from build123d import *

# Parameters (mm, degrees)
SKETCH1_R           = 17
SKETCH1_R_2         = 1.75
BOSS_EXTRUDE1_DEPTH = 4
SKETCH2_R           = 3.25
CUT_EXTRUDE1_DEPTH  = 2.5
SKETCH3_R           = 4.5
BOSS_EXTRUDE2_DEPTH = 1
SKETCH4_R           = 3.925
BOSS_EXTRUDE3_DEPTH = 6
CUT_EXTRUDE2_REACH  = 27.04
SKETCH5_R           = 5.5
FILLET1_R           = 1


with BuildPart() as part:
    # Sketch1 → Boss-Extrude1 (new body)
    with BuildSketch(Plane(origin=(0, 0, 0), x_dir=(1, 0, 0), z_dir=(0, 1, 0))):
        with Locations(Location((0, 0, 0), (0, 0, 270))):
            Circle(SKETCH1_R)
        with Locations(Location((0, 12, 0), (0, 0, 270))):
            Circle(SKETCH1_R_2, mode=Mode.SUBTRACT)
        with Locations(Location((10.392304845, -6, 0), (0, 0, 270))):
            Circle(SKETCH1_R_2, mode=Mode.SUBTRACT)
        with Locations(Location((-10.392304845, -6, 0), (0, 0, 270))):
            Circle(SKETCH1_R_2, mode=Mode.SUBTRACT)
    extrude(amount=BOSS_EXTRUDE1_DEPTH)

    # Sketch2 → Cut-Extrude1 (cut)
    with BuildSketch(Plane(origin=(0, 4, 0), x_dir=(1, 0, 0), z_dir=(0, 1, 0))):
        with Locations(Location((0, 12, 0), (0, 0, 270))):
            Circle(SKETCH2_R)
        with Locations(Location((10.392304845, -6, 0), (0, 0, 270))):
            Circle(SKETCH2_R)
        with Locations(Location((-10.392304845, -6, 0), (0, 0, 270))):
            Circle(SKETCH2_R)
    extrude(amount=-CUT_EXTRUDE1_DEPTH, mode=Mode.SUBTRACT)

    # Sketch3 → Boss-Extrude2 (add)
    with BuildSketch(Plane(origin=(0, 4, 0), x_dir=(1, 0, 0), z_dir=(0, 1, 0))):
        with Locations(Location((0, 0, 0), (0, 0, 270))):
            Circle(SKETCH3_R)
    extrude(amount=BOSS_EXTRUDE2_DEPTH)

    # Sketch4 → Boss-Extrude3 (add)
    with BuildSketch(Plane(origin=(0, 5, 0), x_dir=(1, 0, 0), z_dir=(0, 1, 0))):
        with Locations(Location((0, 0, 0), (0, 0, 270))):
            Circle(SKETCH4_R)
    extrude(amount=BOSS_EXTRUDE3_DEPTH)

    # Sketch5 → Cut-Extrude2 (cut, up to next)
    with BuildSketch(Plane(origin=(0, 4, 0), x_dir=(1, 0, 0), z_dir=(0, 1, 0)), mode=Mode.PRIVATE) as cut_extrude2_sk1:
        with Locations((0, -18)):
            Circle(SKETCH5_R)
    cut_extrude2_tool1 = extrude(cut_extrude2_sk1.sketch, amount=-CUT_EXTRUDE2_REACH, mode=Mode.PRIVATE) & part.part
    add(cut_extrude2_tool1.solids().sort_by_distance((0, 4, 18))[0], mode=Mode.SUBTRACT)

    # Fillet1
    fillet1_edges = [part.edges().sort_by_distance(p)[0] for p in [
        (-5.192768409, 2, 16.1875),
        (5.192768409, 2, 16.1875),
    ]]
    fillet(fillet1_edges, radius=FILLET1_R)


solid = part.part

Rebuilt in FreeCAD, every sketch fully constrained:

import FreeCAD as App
import Part
import Sketcher
from FreeCAD import Vector


def edges_at(feature, points):
    """Names of the edges that pass closest to the given points."""
    edges = feature.Shape.Edges
    near = lambda p: min(range(len(edges)), key=lambda i: edges[i].distToShape(Part.Vertex(*p))[0])
    return sorted({f"Edge{near(p) + 1}" for p in points})

doc = App.newDocument("Part")
body = doc.addObject("PartDesign::Body", "Body")

sketch1 = doc.addObject("Sketcher::SketchObject", "Sketch")
body.addObject(sketch1)
sketch1.AttachmentSupport = (doc.XZ_Plane, [""])
sketch1.MapMode = "FlatFace"
sketch1.addGeometry(Part.Circle(Vector(0, 0, 0), Vector(0, 0, 1), 17), False)
sketch1.addGeometry(Part.Circle(Vector(0, -12, 0), Vector(0, 0, 1), 1.75), False)
sketch1.addGeometry(Part.Circle(Vector(-10.392305, 6, 0), Vector(0, 0, 1), 1.75), False)
sketch1.addGeometry(Part.Circle(Vector(10.392305, 6, 0), Vector(0, 0, 1), 1.75), False)
sketch1.addConstraint(Sketcher.Constraint("Coincident", 0, 3, -1, 1))
sketch1.addConstraint(Sketcher.Constraint("Equal", 1, 2))
sketch1.addConstraint(Sketcher.Constraint("Equal", 2, 3))
sketch1.addConstraint(Sketcher.Constraint("Symmetric", 2, 3, 3, 3, -2))
sketch1.addConstraint(Sketcher.Constraint("PointOnObject", 1, 3, -2))
sketch1.addConstraint(Sketcher.Constraint("Diameter", 0, 34.0))
sketch1.addConstraint(Sketcher.Constraint("Diameter", 1, 3.5))
sketch1.addConstraint(Sketcher.Constraint("DistanceY", 1, 3, -1, 1, 12.0))
sketch1.addConstraint(Sketcher.Constraint("DistanceY", -1, 1, 2, 3, 6.0))
sketch1.addConstraint(Sketcher.Constraint("DistanceX", 2, 3, 3, 3, 20.78461))
pad1 = doc.addObject("PartDesign::Pad", "Pad")
body.addObject(pad1)
pad1.Profile = sketch1
pad1.Length = 4
pad1.Reversed = True

sketch2 = doc.addObject("Sketcher::SketchObject", "Sketch001")
body.addObject(sketch2)
sketch2.AttachmentSupport = (doc.XZ_Plane, [""])
sketch2.MapMode = "FlatFace"
sketch2.AttachmentOffset = App.Placement(Vector(0, 0, -4), App.Rotation())
sketch2.addGeometry(Part.Circle(Vector(0, -12, 0), Vector(0, 0, 1), 3.25), False)
sketch2.addGeometry(Part.Circle(Vector(10.392305, 6, 0), Vector(0, 0, 1), 3.25), False)
sketch2.addGeometry(Part.Circle(Vector(-10.392305, 6, 0), Vector(0, 0, 1), 3.25), False)
sketch2.addConstraint(Sketcher.Constraint("Equal", 0, 1))
sketch2.addConstraint(Sketcher.Constraint("Equal", 1, 2))
sketch2.addConstraint(Sketcher.Constraint("Symmetric", 1, 3, 2, 3, -2))
sketch2.addConstraint(Sketcher.Constraint("PointOnObject", 0, 3, -2))
sketch2.addConstraint(Sketcher.Constraint("Diameter", 0, 6.5))
sketch2.addConstraint(Sketcher.Constraint("DistanceY", 0, 3, -1, 1, 12.0))
sketch2.addConstraint(Sketcher.Constraint("DistanceY", -1, 1, 1, 3, 6.0))
sketch2.addConstraint(Sketcher.Constraint("DistanceX", 2, 3, 1, 3, 20.78461))
pocket1 = doc.addObject("PartDesign::Pocket", "Pocket")
body.addObject(pocket1)
pocket1.Profile = sketch2
pocket1.Length = 2.5
pocket1.Reversed = True

sketch3 = doc.addObject("Sketcher::SketchObject", "Sketch002")
body.addObject(sketch3)
sketch3.AttachmentSupport = (doc.XZ_Plane, [""])
sketch3.MapMode = "FlatFace"
sketch3.AttachmentOffset = App.Placement(Vector(0, 0, -4), App.Rotation())
sketch3.addGeometry(Part.Circle(Vector(0, 0, 0), Vector(0, 0, 1), 4.5), False)
sketch3.addConstraint(Sketcher.Constraint("Coincident", 0, 3, -1, 1))
sketch3.addConstraint(Sketcher.Constraint("Diameter", 0, 9.0))
pad2 = doc.addObject("PartDesign::Pad", "Pad001")
body.addObject(pad2)
pad2.Profile = sketch3
pad2.Length = 1
pad2.Reversed = True

sketch4 = doc.addObject("Sketcher::SketchObject", "Sketch003")
body.addObject(sketch4)
sketch4.AttachmentSupport = (doc.XZ_Plane, [""])
sketch4.MapMode = "FlatFace"
sketch4.AttachmentOffset = App.Placement(Vector(0, 0, -5), App.Rotation())
sketch4.addGeometry(Part.Circle(Vector(0, 0, 0), Vector(0, 0, 1), 3.925), False)
sketch4.addConstraint(Sketcher.Constraint("Coincident", 0, 3, -1, 1))
sketch4.addConstraint(Sketcher.Constraint("Diameter", 0, 7.85))
pad3 = doc.addObject("PartDesign::Pad", "Pad002")
body.addObject(pad3)
pad3.Profile = sketch4
pad3.Length = 6
pad3.Reversed = True

sketch5 = doc.addObject("Sketcher::SketchObject", "Sketch004")
body.addObject(sketch5)
sketch5.AttachmentSupport = (doc.XZ_Plane, [""])
sketch5.MapMode = "FlatFace"
sketch5.AttachmentOffset = App.Placement(Vector(0, 0, -4), App.Rotation())
sketch5.addGeometry(Part.Circle(Vector(0, 18, 0), Vector(0, 0, 1), 5.5), False)
sketch5.addConstraint(Sketcher.Constraint("PointOnObject", 0, 3, -2))
sketch5.addConstraint(Sketcher.Constraint("Diameter", 0, 11.0))
sketch5.addConstraint(Sketcher.Constraint("DistanceY", -1, 1, 0, 3, 18.0))
pocket2 = doc.addObject("PartDesign::Pocket", "Pocket001")
body.addObject(pocket2)
pocket2.Profile = sketch5
pocket2.Length = 4
pocket2.Reversed = True
doc.recompute()

fillet = doc.addObject("PartDesign::Fillet", "Fillet")
body.addObject(fillet)
fillet.Base = (pocket2, edges_at(pocket2, [(-5.193, 2, 16.188), (5.193, 2, 16.188)]))
fillet.Radius = 1

doc.recompute()
